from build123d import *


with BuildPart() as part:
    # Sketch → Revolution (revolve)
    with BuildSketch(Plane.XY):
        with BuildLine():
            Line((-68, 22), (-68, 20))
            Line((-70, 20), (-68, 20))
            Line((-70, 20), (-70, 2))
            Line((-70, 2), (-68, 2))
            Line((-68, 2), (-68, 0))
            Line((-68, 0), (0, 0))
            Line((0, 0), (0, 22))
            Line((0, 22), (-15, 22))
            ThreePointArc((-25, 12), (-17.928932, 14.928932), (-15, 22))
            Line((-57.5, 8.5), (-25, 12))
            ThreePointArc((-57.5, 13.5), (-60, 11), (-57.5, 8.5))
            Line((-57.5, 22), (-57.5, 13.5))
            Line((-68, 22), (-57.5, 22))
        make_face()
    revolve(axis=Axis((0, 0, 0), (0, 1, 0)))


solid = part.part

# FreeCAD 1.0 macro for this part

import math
import FreeCAD as App
import Part
import Sketcher
Q = App.Units.Quantity

doc = App.newDocument("Part")
body = doc.addObject("PartDesign::Body", "Body")

sketch1 = doc.addObject("Sketcher::SketchObject", "Sketch")
body.addObject(sketch1)
sketch1.AttachmentSupport = (doc.XY_Plane, [""])
sketch1.MapMode = "FlatFace"
sketch1.addGeometry(Part.LineSegment(App.Vector(-68, 22, 0), App.Vector(-68, 20, 0)), False)
sketch1.addGeometry(Part.LineSegment(App.Vector(-68, 20, 0), App.Vector(-70, 20, 0)), False)
sketch1.addGeometry(Part.LineSegment(App.Vector(-70, 20, 0), App.Vector(-70, 2, 0)), False)
sketch1.addGeometry(Part.LineSegment(App.Vector(-70, 2, 0), App.Vector(-68, 2, 0)), False)
sketch1.addGeometry(Part.LineSegment(App.Vector(-68, 2, 0), App.Vector(-68, 0, 0)), False)
sketch1.addGeometry(Part.LineSegment(App.Vector(-68, 0, 0), App.Vector(0, 0, 0)), False)
sketch1.addGeometry(Part.LineSegment(App.Vector(0, 0, 0), App.Vector(0, 22, 0)), False)
sketch1.addGeometry(Part.LineSegment(App.Vector(0, 22, 0), App.Vector(-15, 22, 0)), False)
sketch1.addGeometry(Part.ArcOfCircle(Part.Circle(App.Vector(-24.999999, 21.999999, 0), App.Vector(0, 0, 1), 9.999999), math.radians(-90.000004), math.radians(0.000004)), False)
sketch1.addGeometry(Part.LineSegment(App.Vector(-25, 12, 0), App.Vector(-57.5, 8.5, 0)), False)
sketch1.addGeometry(Part.ArcOfCircle(Part.Circle(App.Vector(-57.5, 11, 0), App.Vector(0, 0, 1), 2.5), math.radians(90), math.radians(270)), False)
sketch1.addGeometry(Part.LineSegment(App.Vector(-57.5, 13.5, 0), App.Vector(-57.5, 22, 0)), False)
sketch1.addGeometry(Part.LineSegment(App.Vector(-57.5, 22, 0), App.Vector(-68, 22, 0)), False)
sketch1.addConstraint(Sketcher.Constraint("Coincident", 0, 2, 1, 1))
sketch1.addConstraint(Sketcher.Constraint("Coincident", 1, 2, 2, 1))
sketch1.addConstraint(Sketcher.Constraint("Coincident", 2, 2, 3, 1))
sketch1.addConstraint(Sketcher.Constraint("Coincident", 3, 2, 4, 1))
sketch1.addConstraint(Sketcher.Constraint("Coincident", 4, 2, 5, 1))
sketch1.addConstraint(Sketcher.Constraint("Coincident", 5, 2, 6, 1))
sketch1.addConstraint(Sketcher.Constraint("Coincident", 6, 2, 7, 1))
sketch1.addConstraint(Sketcher.Constraint("Coincident", 7, 2, 8, 2))
sketch1.addConstraint(Sketcher.Constraint("Coincident", 8, 1, 9, 1))
sketch1.addConstraint(Sketcher.Constraint("Coincident", 9, 2, 10, 2))
sketch1.addConstraint(Sketcher.Constraint("Coincident", 10, 1, 11, 1))
sketch1.addConstraint(Sketcher.Constraint("Coincident", 11, 2, 12, 1))
sketch1.addConstraint(Sketcher.Constraint("Coincident", 12, 2, 0, 1))
sketch1.addConstraint(Sketcher.Constraint("Vertical", 0))
sketch1.addConstraint(Sketcher.Constraint("Horizontal", 1))
sketch1.addConstraint(Sketcher.Constraint("Vertical", 2))
sketch1.addConstraint(Sketcher.Constraint("Horizontal", 3))
sketch1.addConstraint(Sketcher.Constraint("Vertical", 4))
sketch1.addConstraint(Sketcher.Constraint("Horizontal", 5))
sketch1.addConstraint(Sketcher.Constraint("Vertical", 6))
sketch1.addConstraint(Sketcher.Constraint("Horizontal", 7))
sketch1.addConstraint(Sketcher.Constraint("Vertical", 11))
sketch1.addConstraint(Sketcher.Constraint("Horizontal", 12))
sketch1.addConstraint(Sketcher.Constraint("Coincident", 5, 2, -1, 1))
sketch1.addConstraint(Sketcher.Constraint("Horizontal", 8, 3, 6, 2))
sketch1.addConstraint(Sketcher.Constraint("Horizontal", 7, 2, 11, 2))
sketch1.addConstraint(Sketcher.Constraint("Vertical", 0, 2, 3, 2))
sketch1.addConstraint(Sketcher.Constraint("Vertical", 10, 3, 9, 2))
sketch1.addConstraint(Sketcher.Constraint("Vertical", 9, 2, 10, 1))
sketch1.addConstraint(Sketcher.Constraint("Equal", 3, 0))
sketch1.addConstraint(Sketcher.Constraint("Equal", 0, 4))
sketch1.addConstraint(Sketcher.Constraint("Radius", 8, Q("9.999999 mm")))
sketch1.addConstraint(Sketcher.Constraint("Radius", 10, Q("2.5 mm")))
sketch1.addConstraint(Sketcher.Constraint("DistanceX", 1, 2, 1, 1, Q("2 mm")))
sketch1.addConstraint(Sketcher.Constraint("DistanceX", 5, 1, 5, 2, Q("68 mm")))
sketch1.addConstraint(Sketcher.Constraint("DistanceX", 7, 2, 7, 1, Q("15 mm")))
sketch1.addConstraint(Sketcher.Constraint("DistanceY", 2, 2, 2, 1, Q("18 mm")))
sketch1.addConstraint(Sketcher.Constraint("DistanceX", 12, 2, 12, 1, Q("10.5 mm")))
sketch1.addConstraint(Sketcher.Constraint("DistanceY", 11, 1, 11, 2, Q("8.5 mm")))
sketch1.addConstraint(Sketcher.Constraint("DistanceX", 8, 1, -1, 1, Q("25 mm")))
revolution = doc.addObject("PartDesign::Revolution", "Revolution")
body.addObject(revolution)
revolution.Profile = sketch1
revolution.ReferenceAxis = (sketch1, ["V_Axis"])
revolution.Angle = 360

doc.recompute()
